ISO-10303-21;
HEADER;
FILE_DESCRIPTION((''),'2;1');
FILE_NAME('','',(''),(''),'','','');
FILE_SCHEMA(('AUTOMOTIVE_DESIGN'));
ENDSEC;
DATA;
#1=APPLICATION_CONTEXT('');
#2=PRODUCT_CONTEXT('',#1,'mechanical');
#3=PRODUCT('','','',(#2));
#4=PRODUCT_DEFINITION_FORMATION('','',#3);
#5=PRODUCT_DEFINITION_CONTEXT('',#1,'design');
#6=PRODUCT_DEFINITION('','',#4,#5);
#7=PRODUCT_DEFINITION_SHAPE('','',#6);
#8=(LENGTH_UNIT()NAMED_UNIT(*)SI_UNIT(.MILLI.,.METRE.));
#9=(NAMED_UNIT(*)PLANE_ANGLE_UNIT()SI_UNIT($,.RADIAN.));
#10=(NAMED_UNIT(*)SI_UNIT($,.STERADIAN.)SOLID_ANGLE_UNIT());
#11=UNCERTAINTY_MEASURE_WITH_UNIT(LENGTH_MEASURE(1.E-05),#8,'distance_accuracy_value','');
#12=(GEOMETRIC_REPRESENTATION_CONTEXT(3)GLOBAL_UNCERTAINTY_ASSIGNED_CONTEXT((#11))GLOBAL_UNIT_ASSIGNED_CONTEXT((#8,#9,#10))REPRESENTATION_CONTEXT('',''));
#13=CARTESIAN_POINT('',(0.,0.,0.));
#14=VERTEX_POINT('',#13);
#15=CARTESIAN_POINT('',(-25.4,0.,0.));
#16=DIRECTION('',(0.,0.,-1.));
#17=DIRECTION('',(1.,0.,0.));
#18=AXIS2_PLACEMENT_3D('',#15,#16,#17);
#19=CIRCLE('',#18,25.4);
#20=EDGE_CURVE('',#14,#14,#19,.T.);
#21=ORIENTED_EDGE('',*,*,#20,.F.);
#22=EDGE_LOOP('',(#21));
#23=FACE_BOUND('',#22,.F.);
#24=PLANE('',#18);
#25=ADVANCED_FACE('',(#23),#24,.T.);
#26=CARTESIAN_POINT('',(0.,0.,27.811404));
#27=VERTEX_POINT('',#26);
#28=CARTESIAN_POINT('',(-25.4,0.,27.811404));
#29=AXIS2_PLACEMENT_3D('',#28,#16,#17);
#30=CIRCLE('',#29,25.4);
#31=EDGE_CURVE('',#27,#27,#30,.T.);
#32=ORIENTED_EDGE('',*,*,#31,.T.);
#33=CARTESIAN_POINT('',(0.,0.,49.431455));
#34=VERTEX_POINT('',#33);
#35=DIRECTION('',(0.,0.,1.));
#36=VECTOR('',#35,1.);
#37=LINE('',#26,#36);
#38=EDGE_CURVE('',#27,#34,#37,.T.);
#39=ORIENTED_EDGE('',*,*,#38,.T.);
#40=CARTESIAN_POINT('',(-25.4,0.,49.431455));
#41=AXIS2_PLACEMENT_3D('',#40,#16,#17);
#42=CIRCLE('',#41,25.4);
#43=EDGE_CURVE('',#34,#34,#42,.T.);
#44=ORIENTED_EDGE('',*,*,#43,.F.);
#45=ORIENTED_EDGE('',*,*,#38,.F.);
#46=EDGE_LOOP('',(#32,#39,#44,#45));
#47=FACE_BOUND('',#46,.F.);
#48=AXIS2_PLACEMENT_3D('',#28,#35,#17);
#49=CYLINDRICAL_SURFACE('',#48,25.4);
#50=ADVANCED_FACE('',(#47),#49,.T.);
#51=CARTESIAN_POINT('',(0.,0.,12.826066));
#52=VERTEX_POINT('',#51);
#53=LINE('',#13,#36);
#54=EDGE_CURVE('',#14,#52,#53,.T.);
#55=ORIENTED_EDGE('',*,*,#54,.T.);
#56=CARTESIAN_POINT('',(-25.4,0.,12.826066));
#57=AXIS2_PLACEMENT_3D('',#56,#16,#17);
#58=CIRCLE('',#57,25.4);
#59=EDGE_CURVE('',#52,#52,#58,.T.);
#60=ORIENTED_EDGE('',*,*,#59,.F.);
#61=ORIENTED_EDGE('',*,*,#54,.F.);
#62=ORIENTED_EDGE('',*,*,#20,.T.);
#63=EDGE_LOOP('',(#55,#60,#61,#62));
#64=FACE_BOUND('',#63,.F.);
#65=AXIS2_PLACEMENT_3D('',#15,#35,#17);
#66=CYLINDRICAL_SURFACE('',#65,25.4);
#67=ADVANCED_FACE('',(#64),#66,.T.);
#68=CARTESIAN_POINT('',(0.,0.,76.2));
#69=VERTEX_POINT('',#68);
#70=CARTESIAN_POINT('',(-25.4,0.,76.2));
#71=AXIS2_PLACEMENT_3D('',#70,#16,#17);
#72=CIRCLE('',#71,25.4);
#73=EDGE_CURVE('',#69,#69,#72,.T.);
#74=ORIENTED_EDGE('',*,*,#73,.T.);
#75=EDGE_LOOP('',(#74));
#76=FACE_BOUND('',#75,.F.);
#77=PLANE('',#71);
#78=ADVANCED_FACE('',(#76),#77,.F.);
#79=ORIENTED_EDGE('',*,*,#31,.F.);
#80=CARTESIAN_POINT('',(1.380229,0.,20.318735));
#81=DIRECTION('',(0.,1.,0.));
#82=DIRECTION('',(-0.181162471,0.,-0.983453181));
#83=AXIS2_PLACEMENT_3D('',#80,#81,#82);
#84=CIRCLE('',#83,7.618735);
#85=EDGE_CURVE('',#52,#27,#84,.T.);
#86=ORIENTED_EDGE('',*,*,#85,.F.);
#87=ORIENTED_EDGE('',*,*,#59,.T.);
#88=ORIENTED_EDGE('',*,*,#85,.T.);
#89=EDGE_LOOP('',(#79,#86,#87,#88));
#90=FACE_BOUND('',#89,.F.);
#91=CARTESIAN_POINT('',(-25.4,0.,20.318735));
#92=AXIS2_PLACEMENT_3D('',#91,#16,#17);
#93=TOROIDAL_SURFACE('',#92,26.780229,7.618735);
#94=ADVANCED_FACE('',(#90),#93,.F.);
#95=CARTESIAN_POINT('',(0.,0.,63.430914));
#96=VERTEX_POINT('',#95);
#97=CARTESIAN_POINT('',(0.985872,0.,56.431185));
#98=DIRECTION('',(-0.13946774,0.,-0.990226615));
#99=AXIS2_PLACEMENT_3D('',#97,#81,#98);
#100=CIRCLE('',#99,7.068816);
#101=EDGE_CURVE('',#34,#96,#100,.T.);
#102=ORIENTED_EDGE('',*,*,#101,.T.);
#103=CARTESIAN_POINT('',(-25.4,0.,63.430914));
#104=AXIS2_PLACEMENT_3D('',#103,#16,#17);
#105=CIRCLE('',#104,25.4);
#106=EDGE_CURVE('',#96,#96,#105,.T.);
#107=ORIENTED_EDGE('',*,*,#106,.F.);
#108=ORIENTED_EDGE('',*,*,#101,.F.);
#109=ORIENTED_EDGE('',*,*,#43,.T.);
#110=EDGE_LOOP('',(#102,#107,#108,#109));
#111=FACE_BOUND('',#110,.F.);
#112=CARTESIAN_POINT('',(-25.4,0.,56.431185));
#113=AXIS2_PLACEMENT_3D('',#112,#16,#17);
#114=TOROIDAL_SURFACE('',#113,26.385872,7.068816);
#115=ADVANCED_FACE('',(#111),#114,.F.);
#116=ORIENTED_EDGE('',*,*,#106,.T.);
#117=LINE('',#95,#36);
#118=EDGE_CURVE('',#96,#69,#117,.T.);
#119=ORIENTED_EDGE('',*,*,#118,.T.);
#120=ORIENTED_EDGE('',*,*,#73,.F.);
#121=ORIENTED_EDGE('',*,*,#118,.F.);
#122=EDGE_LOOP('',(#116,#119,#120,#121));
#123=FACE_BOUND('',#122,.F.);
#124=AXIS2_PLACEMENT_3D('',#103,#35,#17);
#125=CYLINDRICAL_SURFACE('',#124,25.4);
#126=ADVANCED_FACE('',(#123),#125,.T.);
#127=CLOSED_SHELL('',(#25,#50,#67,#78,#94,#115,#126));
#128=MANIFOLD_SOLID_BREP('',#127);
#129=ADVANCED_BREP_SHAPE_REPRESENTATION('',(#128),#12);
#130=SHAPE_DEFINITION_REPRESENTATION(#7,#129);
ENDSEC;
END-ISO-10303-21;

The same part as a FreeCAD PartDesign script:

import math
import FreeCAD as App
import Part
import Sketcher

V = App.Vector
Q = App.Units.Quantity

doc = App.newDocument("Part")
body = doc.addObject("PartDesign::Body", "Body")

# Sketch on XZ plane
sketch1 = doc.addObject("Sketcher::SketchObject", "Sketch")
body.addObject(sketch1)
sketch1.AttachmentSupport = (doc.XZ_Plane, [""])
sketch1.MapMode = "FlatFace"
sketch1.addGeometry([
    Part.LineSegment(V(0, 76, 0), V(-25, 76, 0)),  # 0
    Part.LineSegment(V(-25, 76, 0), V(-25, 0, 0)),  # 1
    Part.LineSegment(V(-25, 0, 0), V(0, 0, 0)),  # 2
    Part.LineSegment(V(0, 0, 0), V(0, 13, 0)),  # 3
    Part.ArcOfCircle(Part.Circle(V(1, 20, 0), V(0, 0, 1), 8), math.radians(100), math.radians(260)),  # 4
    Part.LineSegment(V(0, 28, 0), V(0, 49, 0)),  # 5
    Part.ArcOfCircle(Part.Circle(V(1, 56, 0), V(0, 0, 1), 7), math.radians(98), math.radians(262)),  # 6
    Part.LineSegment(V(0, 63, 0), V(0, 76, 0)),  # 7
], False)
sketch1.addGeometry(Part.LineSegment(V(-25, 76, 0), V(-25, 0, 0)), True)  # axis
sketch1.addConstraint([
    Sketcher.Constraint("Coincident", 0, 2, 1, 1),
    Sketcher.Constraint("Coincident", 1, 2, 2, 1),
    Sketcher.Constraint("Coincident", 2, 2, 3, 1),
    Sketcher.Constraint("Coincident", 3, 2, 4, 2),
    Sketcher.Constraint("Coincident", 4, 1, 5, 1),
    Sketcher.Constraint("Coincident", 5, 2, 6, 2),
    Sketcher.Constraint("Coincident", 6, 1, 7, 1),
    Sketcher.Constraint("Coincident", 7, 2, 0, 1),
    Sketcher.Constraint("Horizontal", 0),
    Sketcher.Constraint("Vertical", 1),
    Sketcher.Constraint("Horizontal", 2),
    Sketcher.Constraint("Vertical", 3),
    Sketcher.Constraint("Vertical", 5),
    Sketcher.Constraint("Vertical", 7),
    Sketcher.Constraint("Vertical", 8),
    Sketcher.Constraint("Coincident", 2, 2, -1, 1),
    Sketcher.Constraint("Coincident", 8, 1, 0, 2),
    Sketcher.Constraint("PointOnObject", 4, 1, -2),
    Sketcher.Constraint("PointOnObject", 6, 1, -2),
    Sketcher.Constraint("PointOnObject", 8, 2, -1),
    Sketcher.Constraint("DistanceX", 0, 2, 0, 1, Q("1 in")),
    Sketcher.Constraint("DistanceY", 1, 2, 1, 1, Q("3 in")),
    Sketcher.Constraint("Radius", 6, Q("0.2782998 in")),
    Sketcher.Constraint("DistanceY", -1, 1, 6, 3, Q("2.2217002 in")),
    Sketcher.Constraint("Radius", 4, 7.618735),
    Sketcher.Constraint("DistanceY", 5, 1, 5, 2, 21.620051),
    Sketcher.Constraint("DistanceY", 3, 1, 3, 2, 12.826066),
    Sketcher.Constraint("DistanceY", 7, 1, 7, 2, 12.769086),
])
revolution = doc.addObject("PartDesign::Revolution", "Revolution")
body.addObject(revolution)
revolution.Profile = sketch1
revolution.ReferenceAxis = (sketch1, ["Axis0"])
revolution.Angle = 360

doc.recompute()
